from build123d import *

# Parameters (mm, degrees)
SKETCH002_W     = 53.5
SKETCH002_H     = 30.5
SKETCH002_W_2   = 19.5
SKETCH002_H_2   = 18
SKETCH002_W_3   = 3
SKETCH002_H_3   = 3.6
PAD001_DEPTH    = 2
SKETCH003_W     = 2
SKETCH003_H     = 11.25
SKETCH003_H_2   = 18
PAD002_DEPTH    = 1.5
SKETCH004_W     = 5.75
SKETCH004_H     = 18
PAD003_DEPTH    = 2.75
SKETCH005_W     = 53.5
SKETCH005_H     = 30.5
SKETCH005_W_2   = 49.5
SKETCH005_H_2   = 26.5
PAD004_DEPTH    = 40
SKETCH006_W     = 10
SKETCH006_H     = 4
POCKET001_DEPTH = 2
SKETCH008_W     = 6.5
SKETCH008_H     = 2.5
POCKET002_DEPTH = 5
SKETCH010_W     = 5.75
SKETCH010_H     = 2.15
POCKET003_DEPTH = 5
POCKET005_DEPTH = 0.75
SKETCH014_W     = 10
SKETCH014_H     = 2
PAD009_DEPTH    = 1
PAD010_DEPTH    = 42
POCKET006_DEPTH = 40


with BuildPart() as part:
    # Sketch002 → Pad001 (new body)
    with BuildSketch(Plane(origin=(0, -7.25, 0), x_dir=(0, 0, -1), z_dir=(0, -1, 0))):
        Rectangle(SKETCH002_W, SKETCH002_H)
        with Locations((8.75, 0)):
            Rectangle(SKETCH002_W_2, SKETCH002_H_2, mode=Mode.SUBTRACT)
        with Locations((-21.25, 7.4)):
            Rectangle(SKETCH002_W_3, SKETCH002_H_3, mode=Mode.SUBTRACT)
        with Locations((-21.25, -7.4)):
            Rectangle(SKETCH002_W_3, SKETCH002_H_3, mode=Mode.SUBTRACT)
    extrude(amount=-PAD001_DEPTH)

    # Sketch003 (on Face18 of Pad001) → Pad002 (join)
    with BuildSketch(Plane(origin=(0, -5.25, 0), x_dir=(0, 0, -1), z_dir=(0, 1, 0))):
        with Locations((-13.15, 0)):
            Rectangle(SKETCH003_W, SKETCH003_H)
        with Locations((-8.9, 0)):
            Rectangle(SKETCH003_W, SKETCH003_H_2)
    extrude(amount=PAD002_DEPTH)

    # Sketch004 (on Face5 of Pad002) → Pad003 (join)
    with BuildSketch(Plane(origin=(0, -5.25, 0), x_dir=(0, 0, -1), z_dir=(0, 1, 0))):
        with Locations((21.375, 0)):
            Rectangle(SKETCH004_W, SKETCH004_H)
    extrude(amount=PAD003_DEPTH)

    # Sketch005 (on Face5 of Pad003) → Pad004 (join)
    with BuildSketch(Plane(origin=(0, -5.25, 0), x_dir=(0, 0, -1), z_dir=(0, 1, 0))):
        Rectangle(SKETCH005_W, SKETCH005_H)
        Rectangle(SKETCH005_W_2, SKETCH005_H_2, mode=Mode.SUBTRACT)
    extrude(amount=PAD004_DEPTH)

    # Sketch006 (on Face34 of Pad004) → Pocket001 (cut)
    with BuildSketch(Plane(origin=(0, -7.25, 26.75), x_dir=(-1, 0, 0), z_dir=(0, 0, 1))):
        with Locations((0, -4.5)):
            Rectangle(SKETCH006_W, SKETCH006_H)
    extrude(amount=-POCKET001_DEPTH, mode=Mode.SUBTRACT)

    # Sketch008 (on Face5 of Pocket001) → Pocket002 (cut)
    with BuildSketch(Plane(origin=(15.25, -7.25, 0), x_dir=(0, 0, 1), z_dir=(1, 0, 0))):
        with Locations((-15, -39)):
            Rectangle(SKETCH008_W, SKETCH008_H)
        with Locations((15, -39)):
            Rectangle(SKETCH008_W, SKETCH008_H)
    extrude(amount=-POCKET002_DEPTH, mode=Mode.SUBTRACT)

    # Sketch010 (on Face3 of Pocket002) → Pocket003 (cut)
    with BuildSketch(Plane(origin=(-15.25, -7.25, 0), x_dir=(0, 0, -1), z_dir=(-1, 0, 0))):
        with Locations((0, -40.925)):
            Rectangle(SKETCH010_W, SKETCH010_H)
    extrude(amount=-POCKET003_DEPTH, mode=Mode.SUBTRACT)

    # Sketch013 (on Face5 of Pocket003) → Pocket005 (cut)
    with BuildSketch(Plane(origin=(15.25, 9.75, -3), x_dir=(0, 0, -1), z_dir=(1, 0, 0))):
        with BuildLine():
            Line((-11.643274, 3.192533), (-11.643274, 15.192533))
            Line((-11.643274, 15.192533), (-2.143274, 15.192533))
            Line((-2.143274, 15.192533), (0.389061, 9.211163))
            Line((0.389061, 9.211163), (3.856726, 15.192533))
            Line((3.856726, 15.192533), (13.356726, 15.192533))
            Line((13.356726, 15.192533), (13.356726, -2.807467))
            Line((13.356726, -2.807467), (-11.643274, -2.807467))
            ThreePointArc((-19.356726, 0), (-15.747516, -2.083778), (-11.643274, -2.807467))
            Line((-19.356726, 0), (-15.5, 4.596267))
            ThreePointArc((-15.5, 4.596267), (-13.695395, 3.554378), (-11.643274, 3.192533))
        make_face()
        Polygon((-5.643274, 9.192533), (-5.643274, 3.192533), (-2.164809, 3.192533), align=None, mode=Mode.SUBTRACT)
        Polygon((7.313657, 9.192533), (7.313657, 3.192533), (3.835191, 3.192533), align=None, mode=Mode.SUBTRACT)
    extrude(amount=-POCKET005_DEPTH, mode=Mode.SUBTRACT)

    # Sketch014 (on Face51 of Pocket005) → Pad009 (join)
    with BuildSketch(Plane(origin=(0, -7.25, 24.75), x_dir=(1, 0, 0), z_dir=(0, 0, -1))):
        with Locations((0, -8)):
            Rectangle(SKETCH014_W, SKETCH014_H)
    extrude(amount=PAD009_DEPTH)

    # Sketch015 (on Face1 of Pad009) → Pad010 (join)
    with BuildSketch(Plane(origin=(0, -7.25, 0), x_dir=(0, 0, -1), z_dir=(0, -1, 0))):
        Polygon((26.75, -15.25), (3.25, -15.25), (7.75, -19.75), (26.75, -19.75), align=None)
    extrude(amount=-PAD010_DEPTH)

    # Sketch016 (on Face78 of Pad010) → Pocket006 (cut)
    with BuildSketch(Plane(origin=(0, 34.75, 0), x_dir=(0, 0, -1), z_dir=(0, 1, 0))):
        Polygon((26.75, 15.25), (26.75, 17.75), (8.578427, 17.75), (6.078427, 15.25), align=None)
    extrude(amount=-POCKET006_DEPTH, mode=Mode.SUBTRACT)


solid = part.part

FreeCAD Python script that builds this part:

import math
import FreeCAD as App
import Part
import Sketcher
from FreeCAD import Vector
Q = App.Units.Quantity


def add_polygon(sketch, points):
    """Adds a closed chain of lines whose ends are joined by coincident constraints."""
    first, n = sketch.GeometryCount, len(points)
    for a, b in zip(points, points[1:] + points[:1]):
        sketch.addGeometry(Part.LineSegment(App.Vector(*a, 0), App.Vector(*b, 0)), False)
    for i in range(n):
        sketch.addConstraint(Sketcher.Constraint("Coincident", first + i, 2, first + (i + 1) % n, 1))

doc = App.newDocument("Part")
params = doc.addObject("Spreadsheet::Sheet", "Params")
for row, (alias, value) in enumerate([
    ("sketch1_width", "18 mm"),
    ("sketch1_height", "3 mm"),
    ("sketch1_width2", "30.5 mm"),
    ("sketch1_width3", "3.6 mm"),
    ("sketch1_height2", "53.5 mm"),
    ("pad1_length", "2 mm"),
    ("sketch2_width", "18 mm"),
    ("sketch2_height", "2 mm"),
    ("sketch2_width2", "11.25 mm"),
    ("pad2_length", "1.5 mm"),
    ("sketch3_width", "18 mm"),
    ("sketch3_height", "5.75 mm"),
    ("pad3_length", "2.75 mm"),
    ("sketch4_width", "30.5 mm"),
    ("sketch4_width2", "26.5 mm"),
    ("sketch4_height", "53.5 mm"),
    ("sketch4_height2", "49.5 mm"),
    ("pad4_length", "40 mm"),
    ("sketch5_width", "10 mm"),
    ("sketch5_height", "4 mm"),
    ("pocket1_length", "2 mm"),
    ("sketch6_width", "2.5 mm"),
    ("sketch6_height", "6.5 mm"),
    ("pocket2_length", "5 mm"),
    ("sketch7_width", "2.15 mm"),
    ("sketch7_height", "5.75 mm"),
    ("pocket3_length", "5 mm"),
    ("sketch8_width", "12 mm"),
    ("sketch8_width2", "18 mm"),
    ("sketch8_width3", "6 mm"),
    ("sketch8_height", "25 mm"),
    ("sketch8_height2", "9.5 mm"),
    ("pocket4_length", "0.75 mm"),
    ("sketch9_width", "10 mm"),
    ("sketch9_height", "2 mm"),
    ("pad5_length", "1 mm"),
    ("sketch10_height", "19 mm"),
    ("sketch10_width", "4.5 mm"),
    ("pad6_length", "42 mm"),
    ("sketch11_width", "2.5 mm"),
    ("pocket5_length", "40 mm"),
], start=1):
    params.set(f"A{row}", alias)
    params.set(f"B{row}", "=" + value)
    params.setAlias(f"B{row}", alias)

body = doc.addObject("PartDesign::Body", "Body")

# Sketch on XZ plane
sketch1 = body.newObject("Sketcher::SketchObject", "Sketch")
sketch1.AttachmentSupport = (doc.getObject("XZ_Plane"), [""])
sketch1.MapMode = "FlatFace"
sketch1.AttachmentOffset = App.Placement(Vector(0, 0, 7.25), App.Rotation())
add_polygon(sketch1, [(15.2, 26.8), (-15.2, 26.8), (-15.2, -26.8), (15.2, -26.8)])  # lines 0-3
add_polygon(sketch1, [(-9.2, 19.8), (-9.2, 22.8), (-5.6, 22.8), (-5.6, 19.8)])  # lines 4-7
add_polygon(sketch1, [(5.6, 19.8), (5.6, 22.8), (9.2, 22.8), (9.2, 19.8)])  # lines 8-11
add_polygon(sketch1, [(-9, -18.5), (-9, 1), (9, 1), (9, -18.5)])  # lines 12-15
sketch1.addConstraint([
    Sketcher.Constraint("Horizontal", 0),
    Sketcher.Constraint("Vertical", 1),
    Sketcher.Constraint("Horizontal", 2),
    Sketcher.Constraint("Vertical", 3),
    Sketcher.Constraint("Vertical", 4),
    Sketcher.Constraint("Horizontal", 5),
    Sketcher.Constraint("Vertical", 6),
    Sketcher.Constraint("Horizontal", 7),
    Sketcher.Constraint("Vertical", 8),
    Sketcher.Constraint("Horizontal", 9),
    Sketcher.Constraint("Vertical", 10),
    Sketcher.Constraint("Horizontal", 11),
    Sketcher.Constraint("Vertical", 12),
    Sketcher.Constraint("Horizontal", 13),
    Sketcher.Constraint("Vertical", 14),
    Sketcher.Constraint("Horizontal", 15),
    Sketcher.Constraint("Symmetric", 0, 2, 2, 2, -1, 1),
    Sketcher.Constraint("Symmetric", 5, 2, 8, 2, -2),
    Sketcher.Constraint("Symmetric", 7, 2, 10, 2, -2),
    Sketcher.Constraint("DistanceX", 13, 1, 13, 2, Q("18 mm")),
    Sketcher.Constraint("DistanceY", 4, 1, 4, 2, Q("3 mm")),
    Sketcher.Constraint("DistanceX", 0, 2, 0, 1, Q("30.5 mm")),
    Sketcher.Constraint("DistanceX", 5, 1, 5, 2, Q("3.6 mm")),
    Sketcher.Constraint("DistanceY", 1, 2, 1, 1, Q("53.5 mm")),
    Sketcher.Constraint("DistanceY", 12, 1, 12, 2, Q("19.5 mm")),
    Sketcher.Constraint("DistanceX", 12, 2, -1, 1, Q("9 mm")),
    Sketcher.Constraint("DistanceY", -1, 1, 12, 2, Q("1 mm")),
    Sketcher.Constraint("DistanceY", 4, 2, 0, 2, Q("4 mm")),
    Sketcher.Constraint("DistanceX", 4, 2, -1, 1, Q("9.2 mm")),
])
sketch1.setExpression("Constraints[35]", "Params.sketch1_width")
sketch1.setExpression("Constraints[36]", "Params.sketch1_height")
sketch1.setExpression("Constraints[37]", "Params.sketch1_width2")
sketch1.setExpression("Constraints[38]", "Params.sketch1_width3")
sketch1.setExpression("Constraints[39]", "Params.sketch1_height2")
pad1 = body.newObject("PartDesign::Pad", "Pad")
pad1.Profile = sketch1
pad1.setExpression("Length", "Params.pad1_length")
pad1.Reversed = True

# Sketch on XZ plane
sketch2 = body.newObject("Sketcher::SketchObject", "Sketch001")
sketch2.AttachmentSupport = (doc.getObject("XZ_Plane"), [""])
sketch2.MapMode = "FlatFace"
sketch2.AttachmentOffset = App.Placement(Vector(0, 0, 5.25), App.Rotation())
add_polygon(sketch2, [(-5.6, 14.2), (5.6, 14.2), (5.6, 12.2), (-5.6, 12.2)])  # lines 0-3
add_polygon(sketch2, [(-9, 9.9), (9, 9.9), (9, 7.9), (-9, 7.9)])  # lines 4-7
sketch2.addConstraint([
    Sketcher.Constraint("Horizontal", 0),
    Sketcher.Constraint("Vertical", 1),
    Sketcher.Constraint("Horizontal", 2),
    Sketcher.Constraint("Vertical", 3),
    Sketcher.Constraint("Horizontal", 4),
    Sketcher.Constraint("Vertical", 5),
    Sketcher.Constraint("Horizontal", 6),
    Sketcher.Constraint("Vertical", 7),
    Sketcher.Constraint("Equal", 3, 5),
    Sketcher.Constraint("DistanceX", 4, 1, 4, 2, Q("18 mm")),
    Sketcher.Constraint("DistanceY", 1, 2, 1, 1, Q("2 mm")),
    Sketcher.Constraint("DistanceX", -1, 1, 4, 2, Q("9 mm")),
    Sketcher.Constraint("DistanceX", 0, 1, 0, 2, Q("11.25 mm")),
    Sketcher.Constraint("DistanceY", -1, 1, 4, 2, Q("9.9 mm")),
    Sketcher.Constraint("DistanceY", -1, 1, 0, 2, Q("14.15 mm")),
    Sketcher.Constraint("DistanceX", -1, 1, 0, 2, Q("5.625 mm")),
])
sketch2.setExpression("Constraints[17]", "Params.sketch2_width")
sketch2.setExpression("Constraints[18]", "Params.sketch2_height")
sketch2.setExpression("Constraints[20]", "Params.sketch2_width2")
pad2 = body.newObject("PartDesign::Pad", "Pad001")
pad2.Profile = sketch2
pad2.setExpression("Length", "Params.pad2_length")
pad2.Reversed = True

# Sketch on XZ plane
sketch3 = body.newObject("Sketcher::SketchObject", "Sketch002")
sketch3.AttachmentSupport = (doc.getObject("XZ_Plane"), [""])
sketch3.MapMode = "FlatFace"
sketch3.AttachmentOffset = App.Placement(Vector(0, 0, 5.25), App.Rotation())
add_polygon(sketch3, [(-9, -18), (9, -18), (9, -24), (-9, -24)])  # lines 0-3
sketch3.addConstraint([
    Sketcher.Constraint("Horizontal", 0),
    Sketcher.Constraint("Vertical", 1),
    Sketcher.Constraint("Horizontal", 2),
    Sketcher.Constraint("Vertical", 3),
    Sketcher.Constraint("DistanceX", 0, 1, 0, 2, Q("18 mm")),
    Sketcher.Constraint("DistanceX", -1, 1, 0, 2, Q("9 mm")),
    Sketcher.Constraint("DistanceY", 1, 2, 1, 1, Q("5.75 mm")),
    Sketcher.Constraint("DistanceY", 0, 2, -1, 1, Q("18.5 mm")),
])
sketch3.setExpression("Constraints[8]", "Params.sketch3_width")
sketch3.setExpression("Constraints[10]", "Params.sketch3_height")
pad3 = body.newObject("PartDesign::Pad", "Pad002")
pad3.Profile = sketch3
pad3.setExpression("Length", "Params.pad3_length")
pad3.Reversed = True

# Sketch on XZ plane
sketch4 = body.newObject("Sketcher::SketchObject", "Sketch003")
sketch4.AttachmentSupport = (doc.getObject("XZ_Plane"), [""])
sketch4.MapMode = "FlatFace"
sketch4.AttachmentOffset = App.Placement(Vector(0, 0, 5.25), App.Rotation())
add_polygon(sketch4, [(-15, 27), (15, 27), (15, -27), (-15, -27)])  # lines 0-3
add_polygon(sketch4, [(13, -25), (13, 25), (-13, 25), (-13, -25)])  # lines 4-7
sketch4.addConstraint([
    Sketcher.Constraint("Horizontal", 0),
    Sketcher.Constraint("Vertical", 1),
    Sketcher.Constraint("Horizontal", 2),
    Sketcher.Constraint("Vertical", 3),
    Sketcher.Constraint("Vertical", 4),
    Sketcher.Constraint("Horizontal", 5),
    Sketcher.Constraint("Vertical", 6),
    Sketcher.Constraint("Horizontal", 7),
    Sketcher.Constraint("Symmetric", 0, 2, 2, 2, -1, 1),
    Sketcher.Constraint("Symmetric", 4, 2, 6, 2, -1, 1),
    Sketcher.Constraint("DistanceX", 0, 1, 0, 2, Q("30.5 mm")),
    Sketcher.Constraint("DistanceX", 5, 2, 5, 1, Q("26.5 mm")),
    Sketcher.Constraint("DistanceY", 1, 2, 1, 1, Q("53.5 mm")),
    Sketcher.Constraint("DistanceY", 4, 1, 4, 2, Q("49.5 mm")),
])
sketch4.setExpression("Constraints[18]", "Params.sketch4_width")
sketch4.setExpression("Constraints[19]", "Params.sketch4_width2")
sketch4.setExpression("Constraints[20]", "Params.sketch4_height")
sketch4.setExpression("Constraints[21]", "Params.sketch4_height2")
pad4 = body.newObject("PartDesign::Pad", "Pad003")
pad4.Profile = sketch4
pad4.setExpression("Length", "Params.pad4_length")
pad4.Reversed = True

# Sketch on XY plane
sketch5 = body.newObject("Sketcher::SketchObject", "Sketch004")
sketch5.AttachmentSupport = (doc.getObject("XY_Plane"), [""])
sketch5.MapMode = "FlatFace"
sketch5.AttachmentOffset = App.Placement(Vector(0, 0, 26.75), App.Rotation())
add_polygon(sketch5, [(5, -4.8), (5, -0.8), (-5, -0.8), (-5, -4.8)])  # lines 0-3
sketch5.addConstraint([
    Sketcher.Constraint("Vertical", 0),
    Sketcher.Constraint("Horizontal", 1),
    Sketcher.Constraint("Vertical", 2),
    Sketcher.Constraint("Horizontal", 3),
    Sketcher.Constraint("DistanceX", 1, 2, 1, 1, Q("10 mm")),
    Sketcher.Constraint("DistanceY", 0, 1, 0, 2, Q("4 mm")),
    Sketcher.Constraint("DistanceX", -1, 1, 0, 2, Q("5 mm")),
    Sketcher.Constraint("DistanceY", 0, 2, -1, 1, Q("0.75 mm")),
])
sketch5.setExpression("Constraints[8]", "Params.sketch5_width")
sketch5.setExpression("Constraints[9]", "Params.sketch5_height")
pocket1 = body.newObject("PartDesign::Pocket", "Pocket")
pocket1.Profile = sketch5
pocket1.setExpression("Length", "Params.pocket1_length")

# Sketch on YZ plane
sketch6 = body.newObject("Sketcher::SketchObject", "Sketch005")
sketch6.AttachmentSupport = (doc.getObject("YZ_Plane"), [""])
sketch6.MapMode = "FlatFace"
sketch6.AttachmentOffset = App.Placement(Vector(0, 0, 15.25), App.Rotation())
add_polygon(sketch6, [(30.5, -18.2), (33, -18.2), (33, -11.8), (30.5, -11.8)])  # lines 0-3
add_polygon(sketch6, [(30.5, 11.8), (33, 11.8), (33, 18.2), (30.5, 18.2)])  # lines 4-7
sketch6.addConstraint([
    Sketcher.Constraint("Horizontal", 0),
    Sketcher.Constraint("Vertical", 1),
    Sketcher.Constraint("Horizontal", 2),
    Sketcher.Constraint("Vertical", 3),
    Sketcher.Constraint("Horizontal", 4),
    Sketcher.Constraint("Vertical", 5),
    Sketcher.Constraint("Horizontal", 6),
    Sketcher.Constraint("Vertical", 7),
    Sketcher.Constraint("Symmetric", 1, 2, 4, 2, -1),
    Sketcher.Constraint("Symmetric", 3, 2, 6, 2, -1),
    Sketcher.Constraint("DistanceX", 0, 1, 0, 2, Q("2.5 mm")),
    Sketcher.Constraint("DistanceY", 1, 1, 1, 2, Q("6.5 mm")),
    Sketcher.Constraint("DistanceX", -1, 1, 0, 2, Q("33 mm")),
    Sketcher.Constraint("DistanceY", 0, 2, 4, 2, Q("30 mm")),
])
sketch6.setExpression("Constraints[18]", "Params.sketch6_width")
sketch6.setExpression("Constraints[19]", "Params.sketch6_height")
pocket2 = body.newObject("PartDesign::Pocket", "Pocket001")
pocket2.Profile = sketch6
pocket2.setExpression("Length", "Params.pocket2_length")

# Sketch on YZ plane
sketch7 = body.newObject("Sketcher::SketchObject", "Sketch006")
sketch7.AttachmentSupport = (doc.getObject("YZ_Plane"), [""])
sketch7.MapMode = "FlatFace"
sketch7.AttachmentOffset = App.Placement(Vector(0, 0, -15.25), App.Rotation())
add_polygon(sketch7, [(32.6, 2.9), (34.8, 2.9), (34.8, -2.9), (32.6, -2.9)])  # lines 0-3
sketch7.addConstraint([
    Sketcher.Constraint("Horizontal", 0),
    Sketcher.Constraint("Vertical", 1),
    Sketcher.Constraint("Horizontal", 2),
    Sketcher.Constraint("Vertical", 3),
    Sketcher.Constraint("DistanceX", 0, 1, 0, 2, Q("2.15 mm")),
    Sketcher.Constraint("DistanceY", 1, 2, 1, 1, Q("5.75 mm")),
    Sketcher.Constraint("DistanceX", -1, 1, 2, 2, Q("32.6 mm")),
    Sketcher.Constraint("DistanceY", -1, 1, 0, 2, Q("2.875 mm")),
])
sketch7.setExpression("Constraints[8]", "Params.sketch7_width")
sketch7.setExpression("Constraints[9]", "Params.sketch7_height")
pocket3 = body.newObject("PartDesign::Pocket", "Pocket002")
pocket3.Profile = sketch7
pocket3.setExpression("Length", "Params.pocket3_length")
pocket3.Reversed = True

# Sketch on YZ plane
sketch8 = body.newObject("Sketcher::SketchObject", "Sketch007")
sketch8.AttachmentSupport = (doc.getObject("YZ_Plane"), [""])
sketch8.MapMode = "FlatFace"
sketch8.AttachmentOffset = App.Placement(Vector(0, 0, 15.25), App.Rotation())
sketch8.addGeometry(Part.LineSegment(Vector(24.9, 8.6, 0), Vector(12.9, 8.6, 0)), False)  # 0
sketch8.addGeometry(Part.ArcOfCircle(Part.Circle(Vector(18.9, 8.6, 0), Vector(0, 0, 1), 6), math.radians(140), math.radians(180)), False)  # 1
sketch8.addGeometry(Part.LineSegment(Vector(14.3, 12.5, 0), Vector(9.8, 16.4, 0)), False)  # 2
sketch8.addGeometry(Part.ArcOfCircle(Part.Circle(Vector(18.9, 8.6, 0), Vector(0, 0, 1), 12), math.radians(140), math.radians(180)), False)  # 3
sketch8.addGeometry(Part.LineSegment(Vector(6.9, 8.6, 0), Vector(6.9, -16.4, 0)), False)  # 4
sketch8.addGeometry(Part.LineSegment(Vector(6.9, -16.4, 0), Vector(24.9, -16.4, 0)), False)  # 5
sketch8.addGeometry(Part.LineSegment(Vector(24.9, -16.4, 0), Vector(24.9, -6.9, 0)), False)  # 6
sketch8.addGeometry(Part.LineSegment(Vector(24.9, -6.9, 0), Vector(19, -3.4, 0)), False)  # 7
sketch8.addGeometry(Part.LineSegment(Vector(19, -3.4, 0), Vector(24.9, -0.9, 0)), False)  # 8
sketch8.addGeometry(Part.LineSegment(Vector(24.9, -0.9, 0), Vector(24.9, 8.6, 0)), False)  # 9
add_polygon(sketch8, [(18.9, -10.3), (12.9, -10.3), (12.9, -6.8)])  # lines 10-12
add_polygon(sketch8, [(18.9, 2.6), (12.9, -0.8), (12.9, 2.6)])  # lines 13-15
sketch8.addConstraint([
    Sketcher.Constraint("Coincident", 0, 2, 1, 2),
    Sketcher.Constraint("Coincident", 1, 1, 2, 1),
    Sketcher.Constraint("Coincident", 2, 2, 3, 1),
    Sketcher.Constraint("Tangent", 3, 2, 4, 1),
    Sketcher.Constraint("Coincident", 4, 2, 5, 1),
    Sketcher.Constraint("Coincident", 5, 2, 6, 1),
    Sketcher.Constraint("Coincident", 6, 2, 7, 1),
    Sketcher.Constraint("Coincident", 7, 2, 8, 1),
    Sketcher.Constraint("Coincident", 8, 2, 9, 1),
    Sketcher.Constraint("Coincident", 9, 2, 0, 1),
    Sketcher.Constraint("Horizontal", 0),
    Sketcher.Constraint("Vertical", 4),
    Sketcher.Constraint("Horizontal", 5),
    Sketcher.Constraint("Vertical", 6),
    Sketcher.Constraint("Vertical", 9),
    Sketcher.Constraint("Horizontal", 10),
    Sketcher.Constraint("Vertical", 11),
    Sketcher.Constraint("Vertical", 14),
    Sketcher.Constraint("Horizontal", 15),
    Sketcher.Constraint("Coincident", 3, 3, 1, 3),
    Sketcher.Constraint("Parallel", 7, 12),
    Sketcher.Constraint("Horizontal", 0, 2, 3, 2),
    Sketcher.Constraint("Vertical", 6, 2, 8, 2),
    Sketcher.Constraint("Vertical", 0, 2, 10, 2),
    Sketcher.Constraint("Vertical", 11, 2, 13, 2),
    Sketcher.Constraint("Vertical", 12, 2, 15, 2),
    Sketcher.Constraint("Equal", 6, 9),
    Sketcher.Constraint("Equal", 11, 14),
    Sketcher.Constraint("DistanceX", 0, 2, 0, 1, Q("12 mm")),
    Sketcher.Constraint("DistanceX", 5, 1, 5, 2, Q("18 mm")),
    Sketcher.Constraint("DistanceX", 10, 2, 10, 1, Q("6 mm")),
    Sketcher.Constraint("DistanceY", 4, 2, 4, 1, Q("25 mm")),
    Sketcher.Constraint("Angle", 2, Q("140 deg")),
    Sketcher.Constraint("DistanceY", 6, 1, 6, 2, Q("9.5 mm")),
    Sketcher.Constraint("DistanceY", 11, 2, 13, 2, Q("6 mm")),
    Sketcher.Constraint("DistanceY", 14, 2, 0, 2, Q("6 mm")),
    Sketcher.Constraint("DistanceY", -1, 1, 1, 1, Q("12.5 mm")),
    Sketcher.Constraint("DistanceX", -1, 1, 2, 2, Q("9.75 mm")),
    Sketcher.Constraint("Radius", 1, Q("6.000008 mm")),
    Sketcher.Constraint("Distance", 7, Q("6.913862 mm")),
    Sketcher.Constraint("DistanceY", 11, 1, 11, 2, Q("3.478466 mm")),
    Sketcher.Constraint("DistanceX", -1, 1, 1, 3, Q("18.942541 mm")),
])
sketch8.setExpression("Constraints[34]", "Params.sketch8_width")
sketch8.setExpression("Constraints[35]", "Params.sketch8_width2")
sketch8.setExpression("Constraints[36]", "Params.sketch8_width3")
sketch8.setExpression("Constraints[37]", "Params.sketch8_height")
sketch8.setExpression("Constraints[39]", "Params.sketch8_height2")
pocket4 = body.newObject("PartDesign::Pocket", "Pocket003")
pocket4.Profile = sketch8
pocket4.setExpression("Length", "Params.pocket4_length")

# Sketch on XY plane
sketch9 = body.newObject("Sketcher::SketchObject", "Sketch008")
sketch9.AttachmentSupport = (doc.getObject("XY_Plane"), [""])
sketch9.MapMode = "FlatFace"
sketch9.AttachmentOffset = App.Placement(Vector(0, 0, 24.75), App.Rotation())
add_polygon(sketch9, [(-5, -0.2), (-5, 1.8), (5, 1.8), (5, -0.2)])  # lines 0-3
sketch9.addConstraint([
    Sketcher.Constraint("Vertical", 0),
    Sketcher.Constraint("Horizontal", 1),
    Sketcher.Constraint("Vertical", 2),
    Sketcher.Constraint("Horizontal", 3),
    Sketcher.Constraint("DistanceX", 1, 1, 1, 2, Q("10 mm")),
    Sketcher.Constraint("DistanceY", 0, 1, 0, 2, Q("2 mm")),
    Sketcher.Constraint("DistanceX", 0, 2, -1, 1, Q("5 mm")),
    Sketcher.Constraint("DistanceY", -1, 1, 0, 2, Q("1.75 mm")),
])
sketch9.setExpression("Constraints[8]", "Params.sketch9_width")
sketch9.setExpression("Constraints[9]", "Params.sketch9_height")
pad5 = body.newObject("PartDesign::Pad", "Pad004")
pad5.Profile = sketch9
pad5.setExpression("Length", "Params.pad5_length")
pad5.Reversed = True

# Sketch on XZ plane
sketch10 = body.newObject("Sketcher::SketchObject", "Sketch009")
sketch10.AttachmentSupport = (doc.getObject("XZ_Plane"), [""])
sketch10.MapMode = "FlatFace"
sketch10.AttachmentOffset = App.Placement(Vector(0, 0, 7.25), App.Rotation())
add_polygon(sketch10, [(-15.2, -26.8), (-15.2, -3.2), (-19.8, -7.8), (-19.8, -26.8)])  # lines 0-3
sketch10.addConstraint([
    Sketcher.Constraint("Vertical", 0),
    Sketcher.Constraint("Vertical", 2),
    Sketcher.Constraint("Horizontal", 3),
    Sketcher.Constraint("DistanceY", 2, 2, 2, 1, Q("19 mm")),
    Sketcher.Constraint("Angle", 1, Q("-135 deg")),
    Sketcher.Constraint("DistanceX", 3, 1, 3, 2, Q("4.5 mm")),
    Sketcher.Constraint("DistanceX", 0, 2, -1, 1, Q("15.25 mm")),
    Sketcher.Constraint("DistanceY", 0, 2, -1, 1, Q("3.25 mm")),
])
sketch10.setExpression("Constraints[7]", "Params.sketch10_height")
sketch10.setExpression("Constraints[9]", "Params.sketch10_width")
pad6 = body.newObject("PartDesign::Pad", "Pad005")
pad6.Profile = sketch10
pad6.setExpression("Length", "Params.pad6_length")
pad6.Reversed = True

# Sketch on XZ plane
sketch11 = body.newObject("Sketcher::SketchObject", "Sketch010")
sketch11.AttachmentSupport = (doc.getObject("XZ_Plane"), [""])
sketch11.MapMode = "FlatFace"
sketch11.AttachmentOffset = App.Placement(Vector(0, 0, -34.75), App.Rotation())
add_polygon(sketch11, [(-15.2, -26.8), (-17.8, -26.8), (-17.8, -8.6), (-15.2, -6.1)])  # lines 0-3
sketch11.addConstraint([
    Sketcher.Constraint("Horizontal", 0),
    Sketcher.Constraint("Vertical", 1),
    Sketcher.Constraint("Vertical", 3),
    Sketcher.Constraint("Angle", 2, Q("45 deg")),
    Sketcher.Constraint("DistanceX", 0, 2, 0, 1, Q("2.5 mm")),
    Sketcher.Constraint("DistanceX", 0, 2, -1, 1, Q("17.75 mm")),
    Sketcher.Constraint("DistanceY", 0, 2, -1, 1, Q("26.75 mm")),
    Sketcher.Constraint("DistanceY", 1, 1, 1, 2, Q("18.171573 mm")),
])
sketch11.setExpression("Constraints[8]", "Params.sketch11_width")
pocket5 = body.newObject("PartDesign::Pocket", "Pocket004")
pocket5.Profile = sketch11
pocket5.setExpression("Length", "Params.pocket5_length")
pocket5.Reversed = True

doc.recompute()
